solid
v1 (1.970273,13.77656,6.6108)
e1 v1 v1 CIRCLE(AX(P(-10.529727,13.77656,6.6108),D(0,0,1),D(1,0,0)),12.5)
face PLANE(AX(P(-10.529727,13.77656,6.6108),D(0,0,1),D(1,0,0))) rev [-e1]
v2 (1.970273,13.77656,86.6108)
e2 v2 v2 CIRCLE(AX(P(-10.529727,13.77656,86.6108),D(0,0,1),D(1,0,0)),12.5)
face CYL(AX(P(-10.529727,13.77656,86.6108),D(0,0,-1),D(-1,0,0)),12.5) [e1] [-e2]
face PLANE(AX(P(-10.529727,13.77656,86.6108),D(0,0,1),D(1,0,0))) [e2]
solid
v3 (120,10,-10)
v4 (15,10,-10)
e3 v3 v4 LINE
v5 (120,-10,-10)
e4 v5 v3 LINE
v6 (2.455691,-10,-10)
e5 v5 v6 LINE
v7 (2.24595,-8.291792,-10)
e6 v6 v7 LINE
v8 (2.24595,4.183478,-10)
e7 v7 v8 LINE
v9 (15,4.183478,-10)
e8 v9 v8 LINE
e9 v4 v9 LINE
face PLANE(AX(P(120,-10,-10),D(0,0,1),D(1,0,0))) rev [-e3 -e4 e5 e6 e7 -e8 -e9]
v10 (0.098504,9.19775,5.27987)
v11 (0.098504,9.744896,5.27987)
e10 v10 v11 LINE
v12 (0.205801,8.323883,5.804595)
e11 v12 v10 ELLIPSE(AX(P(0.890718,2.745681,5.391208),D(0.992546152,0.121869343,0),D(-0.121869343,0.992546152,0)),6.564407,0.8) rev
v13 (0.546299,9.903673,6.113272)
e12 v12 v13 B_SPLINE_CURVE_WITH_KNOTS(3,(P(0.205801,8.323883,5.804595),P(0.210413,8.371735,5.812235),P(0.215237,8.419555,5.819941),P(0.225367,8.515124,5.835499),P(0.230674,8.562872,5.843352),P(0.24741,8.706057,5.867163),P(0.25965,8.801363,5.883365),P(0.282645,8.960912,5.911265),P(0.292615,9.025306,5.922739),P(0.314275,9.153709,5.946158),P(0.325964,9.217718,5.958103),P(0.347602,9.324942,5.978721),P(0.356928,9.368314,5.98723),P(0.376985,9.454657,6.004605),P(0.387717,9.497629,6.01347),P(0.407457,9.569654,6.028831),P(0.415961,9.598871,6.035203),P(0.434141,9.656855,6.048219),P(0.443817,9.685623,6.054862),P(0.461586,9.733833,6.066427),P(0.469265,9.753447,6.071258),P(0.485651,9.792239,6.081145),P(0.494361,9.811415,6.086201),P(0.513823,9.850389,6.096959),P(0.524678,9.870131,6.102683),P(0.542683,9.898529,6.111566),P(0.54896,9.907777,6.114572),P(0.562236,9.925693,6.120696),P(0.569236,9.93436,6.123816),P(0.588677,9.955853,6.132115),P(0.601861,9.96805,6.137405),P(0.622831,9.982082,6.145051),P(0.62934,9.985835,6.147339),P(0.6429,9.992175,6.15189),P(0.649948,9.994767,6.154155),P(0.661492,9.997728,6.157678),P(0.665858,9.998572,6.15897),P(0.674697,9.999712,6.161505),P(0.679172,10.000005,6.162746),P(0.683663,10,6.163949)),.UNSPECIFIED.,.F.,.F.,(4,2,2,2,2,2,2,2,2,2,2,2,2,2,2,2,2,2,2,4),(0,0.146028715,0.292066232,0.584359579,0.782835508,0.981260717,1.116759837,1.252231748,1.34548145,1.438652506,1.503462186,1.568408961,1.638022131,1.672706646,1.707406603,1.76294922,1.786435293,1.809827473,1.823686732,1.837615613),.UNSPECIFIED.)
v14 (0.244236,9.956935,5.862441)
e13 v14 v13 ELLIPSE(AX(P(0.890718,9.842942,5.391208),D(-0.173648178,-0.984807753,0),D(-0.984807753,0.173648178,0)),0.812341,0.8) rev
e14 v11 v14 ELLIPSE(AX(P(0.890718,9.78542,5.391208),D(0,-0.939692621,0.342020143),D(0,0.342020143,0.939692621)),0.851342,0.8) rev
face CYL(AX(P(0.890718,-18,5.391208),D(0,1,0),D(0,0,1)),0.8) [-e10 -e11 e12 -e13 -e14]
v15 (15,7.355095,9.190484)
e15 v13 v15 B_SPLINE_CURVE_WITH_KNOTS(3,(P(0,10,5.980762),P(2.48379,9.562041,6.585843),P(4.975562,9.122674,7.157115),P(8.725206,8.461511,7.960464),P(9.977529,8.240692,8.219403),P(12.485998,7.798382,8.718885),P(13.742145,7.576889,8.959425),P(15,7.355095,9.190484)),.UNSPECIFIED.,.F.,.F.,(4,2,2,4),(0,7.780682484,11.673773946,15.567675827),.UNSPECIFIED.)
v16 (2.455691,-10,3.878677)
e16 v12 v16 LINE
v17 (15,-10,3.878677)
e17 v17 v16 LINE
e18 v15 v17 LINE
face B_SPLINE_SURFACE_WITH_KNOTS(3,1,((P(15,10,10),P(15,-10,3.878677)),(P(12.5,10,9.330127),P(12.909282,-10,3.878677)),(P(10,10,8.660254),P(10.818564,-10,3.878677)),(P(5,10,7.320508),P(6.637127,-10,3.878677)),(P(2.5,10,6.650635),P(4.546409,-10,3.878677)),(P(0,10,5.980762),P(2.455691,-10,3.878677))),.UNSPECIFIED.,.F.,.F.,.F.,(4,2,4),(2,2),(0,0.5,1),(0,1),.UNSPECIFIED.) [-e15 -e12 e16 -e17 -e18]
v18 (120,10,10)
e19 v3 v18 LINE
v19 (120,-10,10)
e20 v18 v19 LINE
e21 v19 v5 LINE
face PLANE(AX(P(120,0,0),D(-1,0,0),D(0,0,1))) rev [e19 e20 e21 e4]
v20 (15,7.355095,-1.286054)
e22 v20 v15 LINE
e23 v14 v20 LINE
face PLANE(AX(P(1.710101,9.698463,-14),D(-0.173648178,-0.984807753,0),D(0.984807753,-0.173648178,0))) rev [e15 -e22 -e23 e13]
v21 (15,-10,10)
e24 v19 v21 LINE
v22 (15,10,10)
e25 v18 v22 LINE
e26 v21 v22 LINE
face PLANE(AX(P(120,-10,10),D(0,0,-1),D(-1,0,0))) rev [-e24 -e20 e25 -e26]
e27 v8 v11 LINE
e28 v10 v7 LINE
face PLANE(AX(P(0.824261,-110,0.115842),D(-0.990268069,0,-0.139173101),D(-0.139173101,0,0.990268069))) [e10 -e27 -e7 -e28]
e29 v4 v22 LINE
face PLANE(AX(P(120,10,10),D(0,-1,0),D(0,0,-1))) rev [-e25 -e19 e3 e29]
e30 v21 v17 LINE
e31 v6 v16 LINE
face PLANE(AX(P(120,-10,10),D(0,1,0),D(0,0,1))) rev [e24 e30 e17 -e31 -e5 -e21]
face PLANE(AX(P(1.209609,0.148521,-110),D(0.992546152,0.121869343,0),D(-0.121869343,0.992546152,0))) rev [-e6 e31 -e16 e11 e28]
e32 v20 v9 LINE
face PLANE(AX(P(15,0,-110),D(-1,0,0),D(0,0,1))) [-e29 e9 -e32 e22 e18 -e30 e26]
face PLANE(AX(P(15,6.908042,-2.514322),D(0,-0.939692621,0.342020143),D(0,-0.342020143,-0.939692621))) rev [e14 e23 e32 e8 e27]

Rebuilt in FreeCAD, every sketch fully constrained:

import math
import FreeCAD as App
import Part
import Sketcher

V = App.Vector
Q = App.Units.Quantity

doc = App.newDocument("Part")
params = doc.addObject("Spreadsheet::Sheet", "Params")
for row, (alias, value) in enumerate([
    ("sketch1_width", "20 mm"),
    ("pad1_length", "120 mm"),
    ("sketch2_width", "15 mm"),
    ("pocket1_length", "120 mm"),
    ("sketch3_width", "15 mm"),
    ("sketch3_height", "20 mm"),
    ("pocket2_length", "120 mm"),
    ("pocket3_length", "15 mm"),
    ("sketch5_radius", "0.8 mm"),
    ("sketch5_height", "20 mm"),
    ("pocket4_length", "28 mm"),
    ("sketch6_width", "20 mm"),
    ("pocket5_length", "15 mm"),
    ("sketch7_width", "20 mm"),
    ("pocket6_length", "15 mm"),
    ("sketch8_height", "20 mm"),
    ("sketch10_width", "15 mm"),
    ("sketch10_height", "20 mm"),
    ("pocket7_length", "24 mm"),
    ("pocket8_length", "15 mm"),
    ("sketch12_radius", "0.8 mm"),
    ("sketch12_width", "15 mm"),
    ("pocket9_length", "24 mm"),
    ("sketch13_diameter", "25 mm"),
    ("pad2_length", "80 mm"),
], start=1):
    params.set(f"A{row}", alias)
    params.set(f"B{row}", "=" + value)
    params.setAlias(f"B{row}", alias)

body = doc.addObject("PartDesign::Body", "Body")

sketch1 = body.newObject("Sketcher::SketchObject", "Sketch")
sketch1.AttachmentSupport = (doc.getObject("YZ_Plane"), [""])
sketch1.MapMode = "FlatFace"
sketch1.addGeometry([
    Part.LineSegment(V(10, 10, 0), V(-10, 10, 0)),
    Part.LineSegment(V(-10, 10, 0), V(-10, -10, 0)),
    Part.LineSegment(V(-10, -10, 0), V(10, -10, 0)),
    Part.LineSegment(V(10, -10, 0), V(10, 10, 0)),
], False)
sketch1.addConstraint([
    Sketcher.Constraint("Coincident", 0, 2, 1, 1),
    Sketcher.Constraint("Coincident", 1, 2, 2, 1),
    Sketcher.Constraint("Coincident", 2, 2, 3, 1),
    Sketcher.Constraint("Coincident", 3, 2, 0, 1),
    Sketcher.Constraint("Horizontal", 0),
    Sketcher.Constraint("Vertical", 1),
    Sketcher.Constraint("Horizontal", 2),
    Sketcher.Constraint("Vertical", 3),
    Sketcher.Constraint("Symmetric", 0, 2, 2, 2, -1, 1),
    Sketcher.Constraint("Equal", 2, 1),
    Sketcher.Constraint("DistanceX", 0, 2, 0, 1, 20.0),
])
sketch1.setExpression("Constraints[10]", "Params.sketch1_width")
pad1 = body.newObject("PartDesign::Pad", "Pad")
pad1.Profile = sketch1
pad1.setExpression("Length", "Params.pad1_length")

sketch2 = body.newObject("Sketcher::SketchObject", "Sketch001")
sketch2.AttachmentSupport = (doc.getObject("XZ_Plane"), [""])
sketch2.MapMode = "FlatFace"
sketch2.AttachmentOffset = App.Placement(V(0, 0, -10), App.Rotation())
sketch2.addGeometry([
    Part.LineSegment(V(0, -10, 0), V(0, 6, 0)),
    Part.LineSegment(V(0, 6, 0), V(2.2, -10, 0)),
    Part.LineSegment(V(2.2, -10, 0), V(0, -10, 0)),
    Part.LineSegment(V(15, 10, 0), V(0, 6, 0)),
    Part.LineSegment(V(0, 6, 0), V(0, 10, 0)),
    Part.LineSegment(V(0, 10, 0), V(15, 10, 0)),
], False)
sketch2.addConstraint([
    Sketcher.Constraint("Coincident", 0, 2, 1, 1),
    Sketcher.Constraint("Coincident", 1, 2, 2, 1),
    Sketcher.Constraint("Coincident", 2, 2, 0, 1),
    Sketcher.Constraint("Coincident", 3, 2, 4, 1),
    Sketcher.Constraint("Coincident", 4, 2, 5, 1),
    Sketcher.Constraint("Coincident", 5, 2, 3, 1),
    Sketcher.Constraint("Vertical", 0),
    Sketcher.Constraint("Horizontal", 2),
    Sketcher.Constraint("Vertical", 4),
    Sketcher.Constraint("Horizontal", 5),
    Sketcher.Constraint("Coincident", 3, 2, 0, 2),
    Sketcher.Constraint("Symmetric", 2, 2, 4, 2, -1, 1),
    Sketcher.Constraint("DistanceX", 5, 1, 5, 2, 15.0),
    Sketcher.Constraint("Angle", 1, Q("-82 deg")),
    Sketcher.Constraint("Angle", 3, Q("-165 deg")),
    Sketcher.Constraint("DistanceY", 1, 2, -1, 1, 10.0),
])
sketch2.setExpression("Constraints[12]", "Params.sketch2_width")
pocket1 = body.newObject("PartDesign::Pocket", "Pocket")
pocket1.Profile = sketch2
pocket1.setExpression("Length", "Params.pocket1_length")
pocket1.Reversed = True

sketch3 = body.newObject("Sketcher::SketchObject", "Sketch002")
sketch3.AttachmentSupport = (doc.getObject("XY_Plane"), [""])
sketch3.MapMode = "FlatFace"
sketch3.AttachmentOffset = App.Placement(V(0, 0, 10), App.Rotation())
sketch3.addGeometry([
    Part.LineSegment(V(2.5, -10, 0), V(0, 10, 0)),
    Part.LineSegment(V(0, 10, 0), V(0, -10, 0)),
    Part.LineSegment(V(0, -10, 0), V(2.5, -10, 0)),
    Part.LineSegment(V(15, 10, 0), V(0, 10, 0)),
    Part.LineSegment(V(0, 10, 0), V(15, 7.4, 0)),
    Part.LineSegment(V(15, 7.4, 0), V(15, 10, 0)),
], False)
sketch3.addConstraint([
    Sketcher.Constraint("Coincident", 0, 2, 1, 1),
    Sketcher.Constraint("Coincident", 1, 2, 2, 1),
    Sketcher.Constraint("Coincident", 2, 2, 0, 1),
    Sketcher.Constraint("Coincident", 3, 2, 4, 1),
    Sketcher.Constraint("Coincident", 4, 2, 5, 1),
    Sketcher.Constraint("Coincident", 5, 2, 3, 1),
    Sketcher.Constraint("Vertical", 1),
    Sketcher.Constraint("Horizontal", 2),
    Sketcher.Constraint("Horizontal", 3),
    Sketcher.Constraint("Vertical", 5),
    Sketcher.Constraint("Coincident", 3, 2, 0, 2),
    Sketcher.Constraint("Symmetric", 0, 2, 1, 2, -1, 1),
    Sketcher.Constraint("DistanceX", 3, 2, 3, 1, 15.0),
    Sketcher.Constraint("DistanceY", 1, 2, 1, 1, 20.0),
    Sketcher.Constraint("Angle", 0, Q("97 deg")),
    Sketcher.Constraint("Angle", 4, Q("-10 deg")),
])
sketch3.setExpression("Constraints[12]", "Params.sketch3_width")
sketch3.setExpression("Constraints[13]", "Params.sketch3_height")
pocket2 = body.newObject("PartDesign::Pocket", "Pocket001")
pocket2.Profile = sketch3
pocket2.setExpression("Length", "Params.pocket2_length")

sketch4 = body.newObject("Sketcher::SketchObject", "Sketch003")
sketch4.AttachmentSupport = (doc.getObject("YZ_Plane"), [""])
sketch4.MapMode = "FlatFace"
sketch4.addGeometry([
    Part.LineSegment(V(10, 6, 0), V(4, -10, 0)),
    Part.LineSegment(V(4, -10, 0), V(10, -10, 0)),
    Part.LineSegment(V(10, -10, 0), V(10, 6, 0)),
], False)
sketch4.addConstraint([
    Sketcher.Constraint("Coincident", 0, 2, 1, 1),
    Sketcher.Constraint("Coincident", 1, 2, 2, 1),
    Sketcher.Constraint("Coincident", 2, 2, 0, 1),
    Sketcher.Constraint("Horizontal", 1),
    Sketcher.Constraint("Vertical", 2),
    Sketcher.Constraint("Angle", 0, Q("-110 deg")),
    Sketcher.Constraint("DistanceY", 0, 2, -1, 1, 10.0),
    Sketcher.Constraint("DistanceX", -1, 1, 1, 2, 10.0),
    Sketcher.Constraint("DistanceX", 1, 1, 1, 2, 5.816522),
])
pocket3 = body.newObject("PartDesign::Pocket", "Pocket002")
pocket3.Profile = sketch4
pocket3.setExpression("Length", "Params.pocket3_length")
pocket3.Reversed = True

sketch5 = body.newObject("Sketcher::SketchObject", "Sketch004")
sketch5.AttachmentSupport = (doc.getObject("XZ_Plane"), [""])
sketch5.MapMode = "FlatFace"
sketch5.AttachmentOffset = App.Placement(V(0, 0, -10), App.Rotation())
sketch5.addGeometry([
    Part.LineSegment(V(15, 10, 0), V(0.7, 6.2, 0)),
    Part.ArcOfCircle(Part.Circle(V(0.9, 5.4, 0), V(0, 0, 1), 0.8), math.radians(105), math.radians(188)),
    Part.LineSegment(V(0.1, 5.3, 0), V(2.2, -10, 0)),
    Part.LineSegment(V(2.2, -10, 0), V(-4.8, -10, 0)),
    Part.LineSegment(V(-4.8, -10, 0), V(-4.8, 10, 0)),
    Part.LineSegment(V(-4.8, 10, 0), V(15, 10, 0)),
], False)
sketch5.addConstraint([
    Sketcher.Constraint("Tangent", 0, 2, 1, 1),
    Sketcher.Constraint("Tangent", 1, 2, 2, 1),
    Sketcher.Constraint("Coincident", 2, 2, 3, 1),
    Sketcher.Constraint("Coincident", 3, 2, 4, 1),
    Sketcher.Constraint("Coincident", 4, 2, 5, 1),
    Sketcher.Constraint("Coincident", 5, 2, 0, 1),
    Sketcher.Constraint("Horizontal", 3),
    Sketcher.Constraint("Vertical", 4),
    Sketcher.Constraint("Horizontal", 5),
    Sketcher.Constraint("Radius", 1, 0.8),
    Sketcher.Constraint("DistanceY", 4, 1, 4, 2, 20.0),
    Sketcher.Constraint("Angle", 0, Q("-165 deg")),
    Sketcher.Constraint("Angle", 2, Q("-82 deg")),
    Sketcher.Constraint("DistanceY", 2, 2, -1, 1, 10.0),
    Sketcher.Constraint("DistanceX", -1, 1, 5, 2, 15.0),
    Sketcher.Constraint("DistanceX", 3, 2, 3, 1, 7.05387),
    Sketcher.Constraint("DistanceX", 5, 1, 5, 2, 19.80792),
])
sketch5.setExpression("Constraints[9]", "Params.sketch5_radius")
sketch5.setExpression("Constraints[10]", "Params.sketch5_height")
pocket4 = body.newObject("PartDesign::Pocket", "Pocket003")
pocket4.Profile = sketch5
pocket4.setExpression("Length", "Params.pocket4_length")
pocket4.Reversed = True

sketch6 = body.newObject("Sketcher::SketchObject", "Sketch005")
sketch6.AttachmentSupport = (doc.getObject("YZ_Plane"), [""])
sketch6.MapMode = "FlatFace"
sketch6.addGeometry([
    Part.LineSegment(V(10, 6, 0), V(-10, 6, 0)),
    Part.LineSegment(V(-10, 6, 0), V(-10, 3.9, 0)),
    Part.LineSegment(V(-10, 3.9, 0), V(10, 6, 0)),
], False)
sketch6.addConstraint([
    Sketcher.Constraint("Coincident", 0, 2, 1, 1),
    Sketcher.Constraint("Coincident", 1, 2, 2, 1),
    Sketcher.Constraint("Coincident", 2, 2, 0, 1),
    Sketcher.Constraint("Horizontal", 0),
    Sketcher.Constraint("Vertical", 1),
    Sketcher.Constraint("DistanceX", 0, 2, 0, 1, 20.0),
    Sketcher.Constraint("Angle", 2, Q("6 deg")),
    Sketcher.Constraint("DistanceX", 0, 2, -1, 1, 10.0),
    Sketcher.Constraint("DistanceY", -1, 1, 0, 2, 5.980762),
])
sketch6.setExpression("Constraints[5]", "Params.sketch6_width")
pocket5 = body.newObject("PartDesign::Pocket", "Pocket004")
pocket5.Profile = sketch6
pocket5.setExpression("Length", "Params.pocket5_length")
pocket5.Reversed = True

sketch7 = body.newObject("Sketcher::SketchObject", "Sketch006")
sketch7.AttachmentSupport = (doc.getObject("YZ_Plane"), [""])
sketch7.MapMode = "FlatFace"
sketch7.addGeometry([
    Part.LineSegment(V(10, 10, 0), V(-10, 10, 0)),
    Part.LineSegment(V(-10, 10, 0), V(-10, 6, 0)),
    Part.LineSegment(V(-10, 6, 0), V(10, 6, 0)),
    Part.LineSegment(V(10, 6, 0), V(10, 10, 0)),
], False)
sketch7.addConstraint([
    Sketcher.Constraint("Coincident", 0, 2, 1, 1),
    Sketcher.Constraint("Coincident", 1, 2, 2, 1),
    Sketcher.Constraint("Coincident", 2, 2, 3, 1),
    Sketcher.Constraint("Coincident", 3, 2, 0, 1),
    Sketcher.Constraint("Horizontal", 0),
    Sketcher.Constraint("Vertical", 1),
    Sketcher.Constraint("Horizontal", 2),
    Sketcher.Constraint("Vertical", 3),
    Sketcher.Constraint("DistanceX", 0, 2, 0, 1, 20.0),
    Sketcher.Constraint("DistanceX", 0, 2, -1, 1, 10.0),
    Sketcher.Constraint("DistanceY", -1, 1, 0, 2, 10.0),
    Sketcher.Constraint("DistanceY", 1, 2, 1, 1, 4.019238),
])
sketch7.setExpression("Constraints[8]", "Params.sketch7_width")
pocket6 = body.newObject("PartDesign::Pocket", "Pocket005")
pocket6.Profile = sketch7
pocket6.setExpression("Length", "Params.pocket6_length")
pocket6.Reversed = True

sketch8 = body.newObject("Sketcher::SketchObject", "Sketch007")
sketch8.AttachmentSupport = (doc.getObject("XZ_Plane"), [""])
sketch8.MapMode = "FlatFace"
sketch8.AttachmentOffset = App.Placement(V(0, 0, -10), App.Rotation())
sketch8.addGeometry([
    Part.LineSegment(V(0, 6, 0), V(15, 10, 0)),
    Part.LineSegment(V(15, 10, 0), V(15, -10, 0)),
    Part.LineSegment(V(15, -10, 0), V(2, -10, 0)),
    Part.LineSegment(V(2, -10, 0), V(0, 6, 0)),
], False)
sketch8.addConstraint([
    Sketcher.Constraint("Coincident", 0, 2, 1, 1),
    Sketcher.Constraint("Coincident", 1, 2, 2, 1),
    Sketcher.Constraint("Coincident", 2, 2, 3, 1),
    Sketcher.Constraint("Coincident", 3, 2, 0, 1),
    Sketcher.Constraint("Vertical", 1),
    Sketcher.Constraint("Horizontal", 2),
    Sketcher.Constraint("PointOnObject", 3, 2, -2),
    Sketcher.Constraint("DistanceY", 1, 2, 1, 1, 20.0),
    Sketcher.Constraint("Angle", 0, Q("15 deg")),
    Sketcher.Constraint("Angle", 3, Q("98 deg")),
    Sketcher.Constraint("DistanceX", -1, 1, 0, 2, 15.0),
    Sketcher.Constraint("DistanceY", -1, 1, 0, 2, 10.0),
])
sketch8.setExpression("Constraints[7]", "Params.sketch8_height")

sketch9 = body.newObject("Sketcher::SketchObject", "Sketch008")
sketch9.AttachmentSupport = (doc.getObject("XZ_Plane"), [""])
sketch9.MapMode = "FlatFace"
sketch9.AttachmentOffset = App.Placement(V(0, 0, 10), App.Rotation())
sketch9.addGeometry([
    Part.LineSegment(V(2, 4, 0), V(2, -10, 0)),
    Part.LineSegment(V(2, -10, 0), V(15, -10, 0)),
    Part.LineSegment(V(15, -10, 0), V(15, 4, 0)),
    Part.LineSegment(V(15, 4, 0), V(2, 4, 0)),
], False)
sketch9.addConstraint([
    Sketcher.Constraint("Coincident", 0, 2, 1, 1),
    Sketcher.Constraint("Coincident", 1, 2, 2, 1),
    Sketcher.Constraint("Coincident", 2, 2, 3, 1),
    Sketcher.Constraint("Coincident", 3, 2, 0, 1),
    Sketcher.Constraint("Vertical", 0),
    Sketcher.Constraint("Horizontal", 1),
    Sketcher.Constraint("Vertical", 2),
    Sketcher.Constraint("Horizontal", 3),
    Sketcher.Constraint("DistanceY", 0, 2, -1, 1, 10.0),
    Sketcher.Constraint("DistanceX", -1, 1, 1, 2, 15.0),
    Sketcher.Constraint("DistanceX", 1, 1, 1, 2, 12.544309),
    Sketcher.Constraint("DistanceY", 0, 2, 0, 1, 13.878677),
])

additiveloft = body.newObject("PartDesign::AdditiveLoft", "AdditiveLoft")
additiveloft.Profile = sketch8
additiveloft.Sections = [sketch9]

sketch10 = body.newObject("Sketcher::SketchObject", "Sketch009")
sketch10.AttachmentSupport = (doc.getObject("XY_Plane"), [""])
sketch10.MapMode = "FlatFace"
sketch10.AttachmentOffset = App.Placement(V(0, 0, 10), App.Rotation())
sketch10.addGeometry([
    Part.LineSegment(V(15, 10, 0), V(0, 10, 0)),
    Part.LineSegment(V(0, 10, 0), V(15, 7.4, 0)),
    Part.LineSegment(V(15, 7.4, 0), V(15, 10, 0)),
    Part.LineSegment(V(0, 10, 0), V(0, -10, 0)),
    Part.LineSegment(V(0, -10, 0), V(2.5, -10, 0)),
    Part.LineSegment(V(2.5, -10, 0), V(0, 10, 0)),
], False)
sketch10.addConstraint([
    Sketcher.Constraint("Coincident", 0, 2, 1, 1),
    Sketcher.Constraint("Coincident", 1, 2, 2, 1),
    Sketcher.Constraint("Coincident", 2, 2, 0, 1),
    Sketcher.Constraint("Coincident", 3, 2, 4, 1),
    Sketcher.Constraint("Coincident", 4, 2, 5, 1),
    Sketcher.Constraint("Coincident", 5, 2, 3, 1),
    Sketcher.Constraint("Horizontal", 0),
    Sketcher.Constraint("Vertical", 2),
    Sketcher.Constraint("Vertical", 3),
    Sketcher.Constraint("Horizontal", 4),
    Sketcher.Constraint("Coincident", 5, 2, 0, 2),
    Sketcher.Constraint("Symmetric", 0, 2, 3, 2, -1, 1),
    Sketcher.Constraint("DistanceX", 0, 2, 0, 1, 15.0),
    Sketcher.Constraint("DistanceY", 3, 2, 3, 1, 20.0),
    Sketcher.Constraint("Angle", 1, Q("-10 deg")),
    Sketcher.Constraint("Angle", 5, Q("97 deg")),
])
sketch10.setExpression("Constraints[12]", "Params.sketch10_width")
sketch10.setExpression("Constraints[13]", "Params.sketch10_height")
pocket7 = body.newObject("PartDesign::Pocket", "Pocket006")
pocket7.Profile = sketch10
pocket7.setExpression("Length", "Params.pocket7_length")

sketch11 = body.newObject("Sketcher::SketchObject", "Sketch010")
sketch11.AttachmentSupport = (doc.getObject("YZ_Plane"), [""])
sketch11.MapMode = "FlatFace"
sketch11.addGeometry([
    Part.LineSegment(V(10, -10, 0), V(10, 6, 0)),
    Part.LineSegment(V(10, 6, 0), V(4, -10, 0)),
    Part.LineSegment(V(4, -10, 0), V(10, -10, 0)),
], False)
sketch11.addConstraint([
    Sketcher.Constraint("Coincident", 0, 2, 1, 1),
    Sketcher.Constraint("Coincident", 1, 2, 2, 1),
    Sketcher.Constraint("Coincident", 2, 2, 0, 1),
    Sketcher.Constraint("Vertical", 0),
    Sketcher.Constraint("Horizontal", 2),
    Sketcher.Constraint("Angle", 1, Q("-110 deg")),
    Sketcher.Constraint("DistanceX", -1, 1, 0, 2, 10.0),
    Sketcher.Constraint("DistanceY", 1, 2, -1, 1, 10.0),
    Sketcher.Constraint("DistanceX", 2, 1, 2, 2, 5.816522),
])
pocket8 = body.newObject("PartDesign::Pocket", "Pocket007")
pocket8.Profile = sketch11
pocket8.setExpression("Length", "Params.pocket8_length")
pocket8.Reversed = True

sketch12 = body.newObject("Sketcher::SketchObject", "Sketch011")
sketch12.AttachmentSupport = (doc.getObject("XZ_Plane"), [""])
sketch12.MapMode = "FlatFace"
sketch12.AttachmentOffset = App.Placement(V(0, 0, -10), App.Rotation())
sketch12.addGeometry([
    Part.LineSegment(V(15, 10, 0), V(0.7, 6.2, 0)),
    Part.ArcOfCircle(Part.Circle(V(0.9, 5.4, 0), V(0, 0, 1), 0.8), math.radians(105), math.radians(188)),
    Part.LineSegment(V(0.1, 5.3, 0), V(2.2, -10, 0)),
    Part.LineSegment(V(2.2, -10, 0), V(0, -10, 0)),
    Part.LineSegment(V(0, -10, 0), V(0, 10, 0)),
    Part.LineSegment(V(0, 10, 0), V(15, 10, 0)),
], False)
sketch12.addConstraint([
    Sketcher.Constraint("Tangent", 0, 2, 1, 1),
    Sketcher.Constraint("Tangent", 1, 2, 2, 1),
    Sketcher.Constraint("Coincident", 2, 2, 3, 1),
    Sketcher.Constraint("Coincident", 3, 2, 4, 1),
    Sketcher.Constraint("Coincident", 4, 2, 5, 1),
    Sketcher.Constraint("Coincident", 5, 2, 0, 1),
    Sketcher.Constraint("Horizontal", 3),
    Sketcher.Constraint("Vertical", 4),
    Sketcher.Constraint("Horizontal", 5),
    Sketcher.Constraint("PointOnObject", 3, 2, -2),
    Sketcher.Constraint("Radius", 1, 0.8),
    Sketcher.Constraint("DistanceX", 5, 1, 5, 2, 15.0),
    Sketcher.Constraint("Angle", 0, Q("-165 deg")),
    Sketcher.Constraint("Angle", 2, Q("-82 deg")),
    Sketcher.Constraint("DistanceY", -1, 1, 4, 2, 10.0),
    Sketcher.Constraint("DistanceX", 3, 2, 3, 1, 2.248976),
    Sketcher.Constraint("DistanceY", 4, 1, 4, 2, 20.021537),
])
sketch12.setExpression("Constraints[10]", "Params.sketch12_radius")
sketch12.setExpression("Constraints[11]", "Params.sketch12_width")
pocket9 = body.newObject("PartDesign::Pocket", "Pocket008")
pocket9.Profile = sketch12
pocket9.setExpression("Length", "Params.pocket9_length")
pocket9.Reversed = True
body2 = doc.addObject("PartDesign::Body", "Body001")

sketch13 = body2.newObject("Sketcher::SketchObject", "Sketch012")
sketch13.AttachmentSupport = (doc.getObject("XY_Plane001"), [""])
sketch13.MapMode = "FlatFace"
sketch13.AttachmentOffset = App.Placement(V(0, 0, 10), App.Rotation())
sketch13.addGeometry(Part.Circle(V(-11, 14, 0), V(0, 0, 1), 12), False)
sketch13.addConstraint([
    Sketcher.Constraint("Diameter", 0, 25.0),
    Sketcher.Constraint("DistanceY", -1, 1, 0, 3, 13.77656),
    Sketcher.Constraint("DistanceX", 0, 3, -1, 1, 10.529727),
])
sketch13.setExpression("Constraints[0]", "Params.sketch13_diameter")
pad2 = body2.newObject("PartDesign::Pad", "Pad001")
pad2.Profile = sketch13
pad2.setExpression("Length", "Params.pad2_length")
body3 = doc.addObject("PartDesign::Body", "Body002")
doc.recompute()

body2.Placement = App.Placement(V(0, 0, -3.3892), App.Rotation(V(0, 0, 1), 0))
boolean = body3.newObject("PartDesign::Boolean", "Boolean")
boolean.Type = "Fuse"
boolean.addObjects([body2])

doc.recompute()
